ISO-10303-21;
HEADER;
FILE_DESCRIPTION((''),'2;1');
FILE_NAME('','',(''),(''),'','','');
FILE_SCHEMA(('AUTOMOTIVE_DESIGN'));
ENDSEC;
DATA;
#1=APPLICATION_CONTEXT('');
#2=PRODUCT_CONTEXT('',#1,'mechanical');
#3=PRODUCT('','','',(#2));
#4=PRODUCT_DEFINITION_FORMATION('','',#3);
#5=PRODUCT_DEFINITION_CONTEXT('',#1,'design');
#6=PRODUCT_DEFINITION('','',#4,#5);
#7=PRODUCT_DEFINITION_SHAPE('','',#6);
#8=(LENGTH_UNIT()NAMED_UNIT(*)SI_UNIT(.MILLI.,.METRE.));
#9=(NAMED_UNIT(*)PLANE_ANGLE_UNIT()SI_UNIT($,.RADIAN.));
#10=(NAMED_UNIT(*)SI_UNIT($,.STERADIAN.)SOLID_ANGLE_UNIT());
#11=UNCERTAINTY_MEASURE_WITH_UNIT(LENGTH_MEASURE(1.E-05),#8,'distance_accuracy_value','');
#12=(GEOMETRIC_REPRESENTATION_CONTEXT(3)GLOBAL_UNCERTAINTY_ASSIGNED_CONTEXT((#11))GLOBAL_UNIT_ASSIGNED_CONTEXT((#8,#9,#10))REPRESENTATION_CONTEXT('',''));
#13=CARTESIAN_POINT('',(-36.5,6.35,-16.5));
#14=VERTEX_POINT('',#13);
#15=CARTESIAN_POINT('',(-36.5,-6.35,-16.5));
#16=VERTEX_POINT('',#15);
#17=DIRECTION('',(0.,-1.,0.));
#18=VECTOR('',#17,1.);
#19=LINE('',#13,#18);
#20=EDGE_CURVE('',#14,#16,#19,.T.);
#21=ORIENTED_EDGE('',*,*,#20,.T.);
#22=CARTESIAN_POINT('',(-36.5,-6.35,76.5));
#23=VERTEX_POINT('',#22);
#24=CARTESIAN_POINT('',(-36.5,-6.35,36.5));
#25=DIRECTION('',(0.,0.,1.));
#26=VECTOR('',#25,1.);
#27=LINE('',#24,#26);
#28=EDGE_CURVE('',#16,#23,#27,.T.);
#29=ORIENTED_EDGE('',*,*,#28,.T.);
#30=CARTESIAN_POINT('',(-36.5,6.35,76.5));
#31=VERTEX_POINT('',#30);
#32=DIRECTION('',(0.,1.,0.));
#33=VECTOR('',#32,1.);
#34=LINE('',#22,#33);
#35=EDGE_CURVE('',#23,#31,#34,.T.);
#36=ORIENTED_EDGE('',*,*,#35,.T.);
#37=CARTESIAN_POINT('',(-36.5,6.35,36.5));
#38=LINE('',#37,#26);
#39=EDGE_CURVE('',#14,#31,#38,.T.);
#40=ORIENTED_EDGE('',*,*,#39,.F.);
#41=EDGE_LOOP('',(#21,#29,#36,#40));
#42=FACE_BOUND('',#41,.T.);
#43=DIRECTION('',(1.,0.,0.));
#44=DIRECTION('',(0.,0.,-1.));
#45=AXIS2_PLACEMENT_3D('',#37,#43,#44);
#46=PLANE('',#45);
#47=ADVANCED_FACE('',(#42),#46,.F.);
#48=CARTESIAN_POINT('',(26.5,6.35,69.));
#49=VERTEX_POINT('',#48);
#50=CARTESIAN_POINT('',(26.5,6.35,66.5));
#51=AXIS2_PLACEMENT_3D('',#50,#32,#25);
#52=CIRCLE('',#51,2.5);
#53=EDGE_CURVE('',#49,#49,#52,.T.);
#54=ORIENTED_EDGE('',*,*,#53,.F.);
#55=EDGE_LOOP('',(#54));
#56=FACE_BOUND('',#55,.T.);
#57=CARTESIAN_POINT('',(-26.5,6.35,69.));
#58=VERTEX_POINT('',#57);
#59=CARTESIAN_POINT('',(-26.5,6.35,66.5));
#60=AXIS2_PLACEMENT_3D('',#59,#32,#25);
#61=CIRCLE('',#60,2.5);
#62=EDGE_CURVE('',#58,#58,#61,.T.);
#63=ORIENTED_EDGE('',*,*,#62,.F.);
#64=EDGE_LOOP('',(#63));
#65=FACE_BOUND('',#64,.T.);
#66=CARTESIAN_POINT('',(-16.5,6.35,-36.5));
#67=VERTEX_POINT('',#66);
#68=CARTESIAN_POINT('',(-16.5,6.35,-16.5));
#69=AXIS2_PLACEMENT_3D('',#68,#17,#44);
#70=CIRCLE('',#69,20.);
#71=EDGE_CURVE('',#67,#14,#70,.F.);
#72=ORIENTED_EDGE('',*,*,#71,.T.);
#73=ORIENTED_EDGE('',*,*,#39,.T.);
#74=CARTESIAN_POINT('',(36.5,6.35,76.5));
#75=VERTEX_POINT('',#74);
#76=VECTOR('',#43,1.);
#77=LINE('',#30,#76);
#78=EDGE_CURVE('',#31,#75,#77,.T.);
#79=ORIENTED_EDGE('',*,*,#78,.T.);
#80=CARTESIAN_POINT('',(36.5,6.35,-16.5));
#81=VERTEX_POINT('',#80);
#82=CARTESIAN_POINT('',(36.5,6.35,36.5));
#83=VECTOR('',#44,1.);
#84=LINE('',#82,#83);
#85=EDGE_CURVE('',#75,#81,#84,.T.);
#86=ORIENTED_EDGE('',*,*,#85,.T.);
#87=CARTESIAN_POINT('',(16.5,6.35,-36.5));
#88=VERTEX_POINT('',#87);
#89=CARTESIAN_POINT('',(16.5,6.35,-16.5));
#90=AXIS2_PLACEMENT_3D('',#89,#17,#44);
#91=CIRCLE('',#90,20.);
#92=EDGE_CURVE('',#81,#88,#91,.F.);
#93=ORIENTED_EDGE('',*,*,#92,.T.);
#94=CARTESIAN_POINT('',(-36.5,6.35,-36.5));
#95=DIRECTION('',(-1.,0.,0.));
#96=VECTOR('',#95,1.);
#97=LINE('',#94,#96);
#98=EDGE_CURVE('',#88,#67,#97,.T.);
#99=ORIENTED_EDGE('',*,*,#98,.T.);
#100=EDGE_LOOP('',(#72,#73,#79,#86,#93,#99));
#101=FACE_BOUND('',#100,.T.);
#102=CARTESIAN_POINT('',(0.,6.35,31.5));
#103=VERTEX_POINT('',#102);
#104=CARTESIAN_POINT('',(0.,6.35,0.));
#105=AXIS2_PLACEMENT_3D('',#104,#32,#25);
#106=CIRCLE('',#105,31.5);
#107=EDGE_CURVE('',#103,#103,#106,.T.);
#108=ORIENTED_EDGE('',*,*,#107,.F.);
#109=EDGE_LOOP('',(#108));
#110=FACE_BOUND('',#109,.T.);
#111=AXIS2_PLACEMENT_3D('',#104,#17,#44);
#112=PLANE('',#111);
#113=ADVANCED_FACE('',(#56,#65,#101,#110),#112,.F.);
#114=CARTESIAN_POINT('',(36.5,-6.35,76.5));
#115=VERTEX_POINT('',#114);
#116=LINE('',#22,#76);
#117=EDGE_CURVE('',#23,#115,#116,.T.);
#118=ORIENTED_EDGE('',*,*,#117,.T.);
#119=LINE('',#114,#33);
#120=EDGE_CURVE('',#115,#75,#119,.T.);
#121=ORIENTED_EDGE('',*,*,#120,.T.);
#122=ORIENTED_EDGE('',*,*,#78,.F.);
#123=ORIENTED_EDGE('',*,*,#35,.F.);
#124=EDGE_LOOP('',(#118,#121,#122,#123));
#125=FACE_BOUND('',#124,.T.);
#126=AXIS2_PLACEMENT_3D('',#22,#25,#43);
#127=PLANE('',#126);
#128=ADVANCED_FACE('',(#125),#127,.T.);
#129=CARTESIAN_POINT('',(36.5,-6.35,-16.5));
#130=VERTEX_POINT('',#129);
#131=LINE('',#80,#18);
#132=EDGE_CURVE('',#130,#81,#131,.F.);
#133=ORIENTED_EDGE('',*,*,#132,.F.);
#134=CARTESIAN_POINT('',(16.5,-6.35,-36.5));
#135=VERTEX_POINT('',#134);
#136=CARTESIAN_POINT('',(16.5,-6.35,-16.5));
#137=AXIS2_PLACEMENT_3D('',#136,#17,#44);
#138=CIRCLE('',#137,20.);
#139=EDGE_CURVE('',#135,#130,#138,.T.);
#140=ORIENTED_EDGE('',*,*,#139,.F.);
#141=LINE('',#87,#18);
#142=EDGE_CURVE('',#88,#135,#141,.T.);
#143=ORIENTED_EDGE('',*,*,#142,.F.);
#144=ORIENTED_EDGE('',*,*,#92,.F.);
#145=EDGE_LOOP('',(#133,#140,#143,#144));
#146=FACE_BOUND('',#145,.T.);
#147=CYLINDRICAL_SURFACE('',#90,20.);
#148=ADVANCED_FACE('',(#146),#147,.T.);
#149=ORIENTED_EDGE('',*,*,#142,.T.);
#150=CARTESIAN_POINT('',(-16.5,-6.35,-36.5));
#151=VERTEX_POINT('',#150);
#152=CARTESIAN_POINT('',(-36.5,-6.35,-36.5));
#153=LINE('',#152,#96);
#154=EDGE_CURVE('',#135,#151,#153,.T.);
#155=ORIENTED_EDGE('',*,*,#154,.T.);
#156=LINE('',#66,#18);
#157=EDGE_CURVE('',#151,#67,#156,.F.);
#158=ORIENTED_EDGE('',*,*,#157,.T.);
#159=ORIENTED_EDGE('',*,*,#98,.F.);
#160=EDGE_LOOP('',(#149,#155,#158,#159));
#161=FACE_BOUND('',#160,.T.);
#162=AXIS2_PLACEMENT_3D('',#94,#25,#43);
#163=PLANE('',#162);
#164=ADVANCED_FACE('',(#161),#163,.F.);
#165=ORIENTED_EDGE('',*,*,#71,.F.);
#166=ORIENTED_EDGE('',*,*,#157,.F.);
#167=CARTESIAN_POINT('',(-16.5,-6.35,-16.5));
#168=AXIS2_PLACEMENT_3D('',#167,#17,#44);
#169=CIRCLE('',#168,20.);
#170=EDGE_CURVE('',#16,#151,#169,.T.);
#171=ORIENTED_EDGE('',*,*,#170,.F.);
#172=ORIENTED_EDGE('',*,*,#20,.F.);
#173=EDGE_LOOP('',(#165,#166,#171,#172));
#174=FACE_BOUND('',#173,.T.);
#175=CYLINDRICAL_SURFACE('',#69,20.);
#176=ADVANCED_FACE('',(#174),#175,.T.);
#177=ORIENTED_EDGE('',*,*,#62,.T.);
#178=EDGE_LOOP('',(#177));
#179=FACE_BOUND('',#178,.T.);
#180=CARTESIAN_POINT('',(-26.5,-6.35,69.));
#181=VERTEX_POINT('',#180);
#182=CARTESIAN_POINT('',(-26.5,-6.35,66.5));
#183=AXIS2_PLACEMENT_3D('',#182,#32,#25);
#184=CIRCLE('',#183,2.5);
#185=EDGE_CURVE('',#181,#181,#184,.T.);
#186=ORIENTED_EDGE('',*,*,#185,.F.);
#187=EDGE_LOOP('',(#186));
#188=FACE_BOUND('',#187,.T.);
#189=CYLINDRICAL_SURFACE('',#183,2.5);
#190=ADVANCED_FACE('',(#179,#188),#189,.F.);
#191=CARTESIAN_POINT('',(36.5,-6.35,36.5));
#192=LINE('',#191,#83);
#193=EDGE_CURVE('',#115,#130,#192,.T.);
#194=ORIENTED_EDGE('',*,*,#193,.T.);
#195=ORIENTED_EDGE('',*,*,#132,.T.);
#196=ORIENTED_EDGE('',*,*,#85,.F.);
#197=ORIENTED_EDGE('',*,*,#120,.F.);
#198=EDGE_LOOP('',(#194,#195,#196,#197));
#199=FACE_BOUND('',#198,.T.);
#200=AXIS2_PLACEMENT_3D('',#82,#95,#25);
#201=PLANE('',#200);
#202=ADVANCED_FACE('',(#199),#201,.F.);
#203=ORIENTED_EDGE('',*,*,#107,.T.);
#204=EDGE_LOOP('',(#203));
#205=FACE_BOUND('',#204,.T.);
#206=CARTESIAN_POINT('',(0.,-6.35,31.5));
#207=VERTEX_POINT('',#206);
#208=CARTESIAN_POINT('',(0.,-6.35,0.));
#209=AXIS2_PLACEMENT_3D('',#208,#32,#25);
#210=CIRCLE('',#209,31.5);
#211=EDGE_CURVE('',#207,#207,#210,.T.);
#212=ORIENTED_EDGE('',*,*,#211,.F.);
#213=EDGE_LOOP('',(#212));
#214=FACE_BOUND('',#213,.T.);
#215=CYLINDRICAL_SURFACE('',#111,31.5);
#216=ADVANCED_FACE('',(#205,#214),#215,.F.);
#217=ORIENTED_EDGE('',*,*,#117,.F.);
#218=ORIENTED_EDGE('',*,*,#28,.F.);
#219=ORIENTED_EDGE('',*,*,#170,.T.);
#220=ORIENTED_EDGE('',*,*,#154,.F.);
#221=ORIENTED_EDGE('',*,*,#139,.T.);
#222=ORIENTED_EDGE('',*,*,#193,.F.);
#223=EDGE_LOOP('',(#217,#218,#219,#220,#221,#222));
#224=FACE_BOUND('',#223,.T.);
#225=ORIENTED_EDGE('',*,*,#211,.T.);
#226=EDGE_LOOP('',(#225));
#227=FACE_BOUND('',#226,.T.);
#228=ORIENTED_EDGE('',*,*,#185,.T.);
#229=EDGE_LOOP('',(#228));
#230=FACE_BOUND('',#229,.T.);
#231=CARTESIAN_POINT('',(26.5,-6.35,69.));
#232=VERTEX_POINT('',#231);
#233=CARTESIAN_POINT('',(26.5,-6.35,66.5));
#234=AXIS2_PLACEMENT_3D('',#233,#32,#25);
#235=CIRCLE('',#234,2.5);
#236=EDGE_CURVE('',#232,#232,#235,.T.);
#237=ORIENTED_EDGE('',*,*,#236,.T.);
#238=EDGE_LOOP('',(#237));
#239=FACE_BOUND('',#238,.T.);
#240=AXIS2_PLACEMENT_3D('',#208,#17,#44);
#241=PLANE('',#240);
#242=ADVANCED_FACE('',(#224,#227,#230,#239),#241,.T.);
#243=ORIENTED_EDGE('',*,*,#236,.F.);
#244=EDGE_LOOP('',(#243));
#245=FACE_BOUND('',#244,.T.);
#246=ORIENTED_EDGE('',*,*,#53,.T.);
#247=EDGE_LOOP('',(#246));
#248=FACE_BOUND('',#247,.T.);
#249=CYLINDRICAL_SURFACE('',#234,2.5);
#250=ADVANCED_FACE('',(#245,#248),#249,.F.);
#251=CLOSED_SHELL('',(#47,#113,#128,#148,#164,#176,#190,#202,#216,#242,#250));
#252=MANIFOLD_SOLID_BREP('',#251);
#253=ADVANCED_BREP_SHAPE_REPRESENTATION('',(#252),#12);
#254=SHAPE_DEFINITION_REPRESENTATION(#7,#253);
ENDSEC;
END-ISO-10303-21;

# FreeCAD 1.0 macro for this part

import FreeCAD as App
import Part
import Sketcher


def edges_at(feature, points):
    """Names of the edges that pass closest to the given points."""
    edges = feature.Shape.Edges
    near = lambda p: min(range(len(edges)), key=lambda i: edges[i].distToShape(Part.Vertex(*p))[0])
    return sorted({f"Edge{near(p) + 1}" for p in points})

doc = App.newDocument("Part")
body = doc.addObject("PartDesign::Body", "Body")

# Sketch on XZ plane
sketch1 = body.newObject("Sketcher::SketchObject", "Sketch")
sketch1.AttachmentSupport = (doc.getObject("XZ_Plane"), [""])
sketch1.MapMode = "FlatFace"
sketch1.addGeometry(Part.LineSegment(App.Vector(-36.5, -36.5, 0), App.Vector(-36.5, 36.5, 0)), False)
sketch1.addGeometry(Part.LineSegment(App.Vector(-36.5, 36.5, 0), App.Vector(36.5, 36.5, 0)), False)
sketch1.addGeometry(Part.LineSegment(App.Vector(36.5, 36.5, 0), App.Vector(36.5, -36.5, 0)), False)
sketch1.addGeometry(Part.LineSegment(App.Vector(36.5, -36.5, 0), App.Vector(-36.5, -36.5, 0)), False)
sketch1.addGeometry(Part.Circle(App.Vector(0, 0, 0), App.Vector(0, 0, 1), 31.5), False)
sketch1.addConstraint(Sketcher.Constraint("Coincident", 0, 2, 1, 1))
sketch1.addConstraint(Sketcher.Constraint("Coincident", 1, 2, 2, 1))
sketch1.addConstraint(Sketcher.Constraint("Coincident", 2, 2, 3, 1))
sketch1.addConstraint(Sketcher.Constraint("Coincident", 3, 2, 0, 1))
sketch1.addConstraint(Sketcher.Constraint("Vertical", 0))
sketch1.addConstraint(Sketcher.Constraint("Horizontal", 1))
sketch1.addConstraint(Sketcher.Constraint("Vertical", 2))
sketch1.addConstraint(Sketcher.Constraint("Horizontal", 3))
sketch1.addConstraint(Sketcher.Constraint("Coincident", 4, 3, -1, 1))
sketch1.addConstraint(Sketcher.Constraint("Symmetric", 0, 2, 2, 2, -1, 1))
sketch1.addConstraint(Sketcher.Constraint("Equal", 3, 0))
sketch1.addConstraint(Sketcher.Constraint("Diameter", 4, 63.0))
sketch1.addConstraint(Sketcher.Constraint("DistanceX", 1, 1, 1, 2, 73.0))
pad1 = body.newObject("PartDesign::Pad", "Pad")
pad1.Profile = sketch1
pad1.Length = 12.7
pad1.Midplane = True

# Sketch on XZ plane
sketch2 = body.newObject("Sketcher::SketchObject", "Sketch001")
sketch2.AttachmentSupport = (doc.getObject("XZ_Plane"), [""])
sketch2.MapMode = "FlatFace"
sketch2.AttachmentOffset = App.Placement(App.Vector(0, 0, -6.35), App.Rotation())
sketch2.addGeometry(Part.LineSegment(App.Vector(-36.5, 36.5, 0), App.Vector(-36.5, 76.5, 0)), False)
sketch2.addGeometry(Part.LineSegment(App.Vector(-36.5, 76.5, 0), App.Vector(36.5, 76.5, 0)), False)
sketch2.addGeometry(Part.LineSegment(App.Vector(36.5, 76.5, 0), App.Vector(36.5, 36.5, 0)), False)
sketch2.addGeometry(Part.LineSegment(App.Vector(36.5, 36.5, 0), App.Vector(-36.5, 36.5, 0)), False)
sketch2.addGeometry(Part.Circle(App.Vector(-26.5, 66.5, 0), App.Vector(0, 0, 1), 2.5), False)
sketch2.addGeometry(Part.Circle(App.Vector(26.5, 66.5, 0), App.Vector(0, 0, 1), 2.5), False)
sketch2.addConstraint(Sketcher.Constraint("Coincident", 0, 2, 1, 1))
sketch2.addConstraint(Sketcher.Constraint("Coincident", 1, 2, 2, 1))
sketch2.addConstraint(Sketcher.Constraint("Coincident", 2, 2, 3, 1))
sketch2.addConstraint(Sketcher.Constraint("Coincident", 3, 2, 0, 1))
sketch2.addConstraint(Sketcher.Constraint("Vertical", 0))
sketch2.addConstraint(Sketcher.Constraint("Horizontal", 1))
sketch2.addConstraint(Sketcher.Constraint("Vertical", 2))
sketch2.addConstraint(Sketcher.Constraint("Horizontal", 3))
sketch2.addConstraint(Sketcher.Constraint("Equal", 4, 5))
sketch2.addConstraint(Sketcher.Constraint("Symmetric", 4, 3, 5, 3, -2))
sketch2.addConstraint(Sketcher.Constraint("Diameter", 4, 5.0))
sketch2.addConstraint(Sketcher.Constraint("DistanceX", 1, 1, 1, 2, 73.0))
sketch2.addConstraint(Sketcher.Constraint("DistanceY", 0, 1, 0, 2, 40.0))
sketch2.addConstraint(Sketcher.Constraint("DistanceX", 4, 3, 5, 3, 53.0))
sketch2.addConstraint(Sketcher.Constraint("DistanceX", 0, 2, 4, 3, 10.0))
sketch2.addConstraint(Sketcher.Constraint("DistanceY", 4, 3, 0, 2, 10.0))
sketch2.addConstraint(Sketcher.Constraint("DistanceY", -1, 1, 4, 3, 66.5))
pad2 = body.newObject("PartDesign::Pad", "Pad001")
pad2.Profile = sketch2
pad2.Length = 12.7
doc.recompute()

fillet = body.newObject("PartDesign::Fillet", "Fillet")
fillet.Base = (pad2, edges_at(pad2, [(-36.5, 0, -36.5), (36.5, 0, -36.5)]))
fillet.Radius = 20

doc.recompute()
